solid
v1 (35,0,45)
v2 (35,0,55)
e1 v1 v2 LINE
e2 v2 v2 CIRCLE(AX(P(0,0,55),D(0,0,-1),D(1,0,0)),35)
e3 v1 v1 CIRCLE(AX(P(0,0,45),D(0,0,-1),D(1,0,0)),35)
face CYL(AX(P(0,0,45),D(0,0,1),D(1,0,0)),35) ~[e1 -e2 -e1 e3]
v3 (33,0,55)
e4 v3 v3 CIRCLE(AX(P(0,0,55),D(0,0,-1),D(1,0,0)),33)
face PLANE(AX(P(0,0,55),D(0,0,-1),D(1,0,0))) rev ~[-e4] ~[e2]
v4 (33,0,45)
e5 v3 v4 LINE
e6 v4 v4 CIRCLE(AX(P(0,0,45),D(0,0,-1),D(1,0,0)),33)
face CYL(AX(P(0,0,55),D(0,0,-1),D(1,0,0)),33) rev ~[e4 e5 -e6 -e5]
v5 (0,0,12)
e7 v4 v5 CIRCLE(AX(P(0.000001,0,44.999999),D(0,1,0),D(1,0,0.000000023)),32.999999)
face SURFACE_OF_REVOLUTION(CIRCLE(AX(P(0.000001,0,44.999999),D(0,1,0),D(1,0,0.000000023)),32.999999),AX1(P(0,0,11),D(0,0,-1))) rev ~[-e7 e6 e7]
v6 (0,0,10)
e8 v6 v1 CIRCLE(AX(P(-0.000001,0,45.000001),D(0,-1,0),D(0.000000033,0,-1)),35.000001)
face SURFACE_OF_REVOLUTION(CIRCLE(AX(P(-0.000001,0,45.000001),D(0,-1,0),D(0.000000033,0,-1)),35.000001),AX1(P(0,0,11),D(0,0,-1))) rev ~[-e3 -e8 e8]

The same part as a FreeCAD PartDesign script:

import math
import FreeCAD as App
import Part
import Sketcher
from FreeCAD import Vector

doc = App.newDocument("Part")
body = doc.addObject("PartDesign::Body", "Body")

# Sketch on XZ plane
sketch1 = body.newObject("Sketcher::SketchObject", "Sketch")
sketch1.AttachmentSupport = (doc.getObject("XZ_Plane"), [""])
sketch1.MapMode = "FlatFace"
sketch1.addGeometry([
    Part.LineSegment(Vector(0, 12, 0), Vector(0, 10, 0)),  # 0
    Part.ArcOfCircle(Part.Circle(Vector(0, 45, 0), Vector(0, 0, 1), 35), math.radians(-90), math.radians(0)),  # 1
    Part.LineSegment(Vector(35, 45, 0), Vector(35, 55, 0)),  # 2
    Part.LineSegment(Vector(35, 55, 0), Vector(33, 55, 0)),  # 3
    Part.LineSegment(Vector(33, 55, 0), Vector(33, 45, 0)),  # 4
    Part.ArcOfCircle(Part.Circle(Vector(0, 45, 0), Vector(0, 0, 1), 33), math.radians(-90), math.radians(0)),  # 5
], False)
sketch1.addConstraint([
    Sketcher.Constraint("Coincident", 0, 2, 1, 1),
    Sketcher.Constraint("Tangent", 1, 2, 2, 1),
    Sketcher.Constraint("Coincident", 2, 2, 3, 1),
    Sketcher.Constraint("Coincident", 3, 2, 4, 1),
    Sketcher.Constraint("Tangent", 4, 2, 5, 2),
    Sketcher.Constraint("Coincident", 5, 1, 0, 1),
    Sketcher.Constraint("Vertical", 0),
    Sketcher.Constraint("Vertical", 2),
    Sketcher.Constraint("Horizontal", 3),
    Sketcher.Constraint("Vertical", 4),
    Sketcher.Constraint("Coincident", 5, 3, 1, 3),
    Sketcher.Constraint("PointOnObject", 1, 3, -2),
    Sketcher.Constraint("PointOnObject", 0, 2, -2),
    Sketcher.Constraint("Radius", 1, 35.000001),
    Sketcher.Constraint("Radius", 5, 32.999999),
    Sketcher.Constraint("DistanceY", 2, 1, 2, 2, 10.0),
    Sketcher.Constraint("DistanceY", -1, 1, 1, 3, 45.000001),
])
revolution = body.newObject("PartDesign::Revolution", "Revolution")
revolution.Profile = sketch1
revolution.ReferenceAxis = (sketch1, ["V_Axis"])
revolution.Angle = 360

doc.recompute()
